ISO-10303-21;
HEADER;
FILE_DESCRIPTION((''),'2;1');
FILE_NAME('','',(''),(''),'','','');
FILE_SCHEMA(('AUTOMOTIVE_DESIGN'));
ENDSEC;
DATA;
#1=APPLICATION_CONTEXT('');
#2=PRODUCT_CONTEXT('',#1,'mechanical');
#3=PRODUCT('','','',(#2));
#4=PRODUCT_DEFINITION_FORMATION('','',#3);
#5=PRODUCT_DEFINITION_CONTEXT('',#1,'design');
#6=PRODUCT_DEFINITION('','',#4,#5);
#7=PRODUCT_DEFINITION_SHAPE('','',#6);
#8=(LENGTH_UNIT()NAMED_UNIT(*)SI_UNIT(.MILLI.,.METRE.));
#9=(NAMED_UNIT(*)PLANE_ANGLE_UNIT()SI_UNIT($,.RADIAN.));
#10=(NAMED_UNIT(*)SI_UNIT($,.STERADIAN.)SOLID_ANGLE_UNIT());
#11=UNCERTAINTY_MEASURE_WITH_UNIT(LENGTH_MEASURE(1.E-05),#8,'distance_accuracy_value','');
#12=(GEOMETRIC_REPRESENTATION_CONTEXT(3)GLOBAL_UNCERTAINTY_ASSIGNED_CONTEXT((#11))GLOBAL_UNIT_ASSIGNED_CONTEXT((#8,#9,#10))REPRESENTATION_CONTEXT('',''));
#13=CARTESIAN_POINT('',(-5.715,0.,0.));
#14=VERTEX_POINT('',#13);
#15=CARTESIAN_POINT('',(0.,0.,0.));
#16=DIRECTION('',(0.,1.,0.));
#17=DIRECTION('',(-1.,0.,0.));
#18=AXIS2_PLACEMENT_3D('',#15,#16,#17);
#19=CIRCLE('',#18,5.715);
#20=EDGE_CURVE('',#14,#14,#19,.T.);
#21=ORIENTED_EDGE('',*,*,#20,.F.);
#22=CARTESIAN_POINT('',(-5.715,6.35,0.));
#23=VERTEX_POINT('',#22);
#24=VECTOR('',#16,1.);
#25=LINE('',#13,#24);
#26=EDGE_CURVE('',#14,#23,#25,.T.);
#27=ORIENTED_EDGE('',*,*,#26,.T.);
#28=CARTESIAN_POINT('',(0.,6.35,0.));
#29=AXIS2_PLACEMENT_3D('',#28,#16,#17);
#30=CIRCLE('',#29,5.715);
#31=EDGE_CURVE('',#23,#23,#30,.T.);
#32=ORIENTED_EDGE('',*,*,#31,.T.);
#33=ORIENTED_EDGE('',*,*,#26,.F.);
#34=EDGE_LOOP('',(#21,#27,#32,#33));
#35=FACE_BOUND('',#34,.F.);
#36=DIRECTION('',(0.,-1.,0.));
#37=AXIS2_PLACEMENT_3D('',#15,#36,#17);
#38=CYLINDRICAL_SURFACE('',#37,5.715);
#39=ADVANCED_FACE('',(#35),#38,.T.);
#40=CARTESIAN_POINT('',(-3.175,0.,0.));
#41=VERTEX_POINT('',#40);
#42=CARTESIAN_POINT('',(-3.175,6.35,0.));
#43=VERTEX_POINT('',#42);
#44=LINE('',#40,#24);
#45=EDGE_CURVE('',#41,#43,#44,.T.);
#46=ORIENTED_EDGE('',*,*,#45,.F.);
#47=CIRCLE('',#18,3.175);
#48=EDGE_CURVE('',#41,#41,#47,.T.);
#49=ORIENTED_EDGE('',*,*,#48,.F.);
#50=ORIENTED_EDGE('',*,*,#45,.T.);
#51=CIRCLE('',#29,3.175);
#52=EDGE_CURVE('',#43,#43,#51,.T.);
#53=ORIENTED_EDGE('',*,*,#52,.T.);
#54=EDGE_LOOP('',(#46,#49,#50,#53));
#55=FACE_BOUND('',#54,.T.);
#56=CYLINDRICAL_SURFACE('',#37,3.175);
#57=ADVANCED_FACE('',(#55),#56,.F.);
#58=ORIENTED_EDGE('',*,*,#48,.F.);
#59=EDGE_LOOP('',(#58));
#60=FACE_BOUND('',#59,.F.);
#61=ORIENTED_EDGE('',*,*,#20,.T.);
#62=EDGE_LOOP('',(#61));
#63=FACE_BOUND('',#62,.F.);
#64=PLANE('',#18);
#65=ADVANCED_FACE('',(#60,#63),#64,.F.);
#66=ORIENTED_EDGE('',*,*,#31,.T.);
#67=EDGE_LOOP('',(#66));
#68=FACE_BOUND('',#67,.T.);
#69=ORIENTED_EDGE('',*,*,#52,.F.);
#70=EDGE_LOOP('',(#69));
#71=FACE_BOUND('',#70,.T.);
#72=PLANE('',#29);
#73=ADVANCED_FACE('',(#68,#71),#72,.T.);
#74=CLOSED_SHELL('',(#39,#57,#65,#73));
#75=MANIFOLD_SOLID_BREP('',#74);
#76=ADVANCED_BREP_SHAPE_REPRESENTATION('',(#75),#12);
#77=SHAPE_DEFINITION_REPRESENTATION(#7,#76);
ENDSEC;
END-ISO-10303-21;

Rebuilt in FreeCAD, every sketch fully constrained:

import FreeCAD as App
import Part
import Sketcher
from FreeCAD import Vector
Q = App.Units.Quantity

doc = App.newDocument("Part")
body = doc.addObject("PartDesign::Body", "Body")

# Sketch on XZ plane
sketch1 = body.newObject("Sketcher::SketchObject", "Sketch")
sketch1.AttachmentSupport = (doc.getObject("XZ_Plane"), [""])
sketch1.MapMode = "FlatFace"
sketch1.addGeometry([
    Part.Circle(Vector(0, 0, 0), Vector(0, 0, 1), 5.7),
    Part.Circle(Vector(0, 0, 0), Vector(0, 0, 1), 3.2),
], False)
sketch1.addConstraint([
    Sketcher.Constraint("Coincident", 0, 3, -1, 1),
    Sketcher.Constraint("Coincident", 1, 3, -1, 1),
    Sketcher.Constraint("Diameter", 0, Q("0.45 in")),
    Sketcher.Constraint("Diameter", 1, Q("0.25 in")),
])
pad1 = body.newObject("PartDesign::Pad", "Pad")
pad1.Profile = sketch1
pad1.Length = Q("0.25 in")
pad1.Reversed = True

doc.recompute()
